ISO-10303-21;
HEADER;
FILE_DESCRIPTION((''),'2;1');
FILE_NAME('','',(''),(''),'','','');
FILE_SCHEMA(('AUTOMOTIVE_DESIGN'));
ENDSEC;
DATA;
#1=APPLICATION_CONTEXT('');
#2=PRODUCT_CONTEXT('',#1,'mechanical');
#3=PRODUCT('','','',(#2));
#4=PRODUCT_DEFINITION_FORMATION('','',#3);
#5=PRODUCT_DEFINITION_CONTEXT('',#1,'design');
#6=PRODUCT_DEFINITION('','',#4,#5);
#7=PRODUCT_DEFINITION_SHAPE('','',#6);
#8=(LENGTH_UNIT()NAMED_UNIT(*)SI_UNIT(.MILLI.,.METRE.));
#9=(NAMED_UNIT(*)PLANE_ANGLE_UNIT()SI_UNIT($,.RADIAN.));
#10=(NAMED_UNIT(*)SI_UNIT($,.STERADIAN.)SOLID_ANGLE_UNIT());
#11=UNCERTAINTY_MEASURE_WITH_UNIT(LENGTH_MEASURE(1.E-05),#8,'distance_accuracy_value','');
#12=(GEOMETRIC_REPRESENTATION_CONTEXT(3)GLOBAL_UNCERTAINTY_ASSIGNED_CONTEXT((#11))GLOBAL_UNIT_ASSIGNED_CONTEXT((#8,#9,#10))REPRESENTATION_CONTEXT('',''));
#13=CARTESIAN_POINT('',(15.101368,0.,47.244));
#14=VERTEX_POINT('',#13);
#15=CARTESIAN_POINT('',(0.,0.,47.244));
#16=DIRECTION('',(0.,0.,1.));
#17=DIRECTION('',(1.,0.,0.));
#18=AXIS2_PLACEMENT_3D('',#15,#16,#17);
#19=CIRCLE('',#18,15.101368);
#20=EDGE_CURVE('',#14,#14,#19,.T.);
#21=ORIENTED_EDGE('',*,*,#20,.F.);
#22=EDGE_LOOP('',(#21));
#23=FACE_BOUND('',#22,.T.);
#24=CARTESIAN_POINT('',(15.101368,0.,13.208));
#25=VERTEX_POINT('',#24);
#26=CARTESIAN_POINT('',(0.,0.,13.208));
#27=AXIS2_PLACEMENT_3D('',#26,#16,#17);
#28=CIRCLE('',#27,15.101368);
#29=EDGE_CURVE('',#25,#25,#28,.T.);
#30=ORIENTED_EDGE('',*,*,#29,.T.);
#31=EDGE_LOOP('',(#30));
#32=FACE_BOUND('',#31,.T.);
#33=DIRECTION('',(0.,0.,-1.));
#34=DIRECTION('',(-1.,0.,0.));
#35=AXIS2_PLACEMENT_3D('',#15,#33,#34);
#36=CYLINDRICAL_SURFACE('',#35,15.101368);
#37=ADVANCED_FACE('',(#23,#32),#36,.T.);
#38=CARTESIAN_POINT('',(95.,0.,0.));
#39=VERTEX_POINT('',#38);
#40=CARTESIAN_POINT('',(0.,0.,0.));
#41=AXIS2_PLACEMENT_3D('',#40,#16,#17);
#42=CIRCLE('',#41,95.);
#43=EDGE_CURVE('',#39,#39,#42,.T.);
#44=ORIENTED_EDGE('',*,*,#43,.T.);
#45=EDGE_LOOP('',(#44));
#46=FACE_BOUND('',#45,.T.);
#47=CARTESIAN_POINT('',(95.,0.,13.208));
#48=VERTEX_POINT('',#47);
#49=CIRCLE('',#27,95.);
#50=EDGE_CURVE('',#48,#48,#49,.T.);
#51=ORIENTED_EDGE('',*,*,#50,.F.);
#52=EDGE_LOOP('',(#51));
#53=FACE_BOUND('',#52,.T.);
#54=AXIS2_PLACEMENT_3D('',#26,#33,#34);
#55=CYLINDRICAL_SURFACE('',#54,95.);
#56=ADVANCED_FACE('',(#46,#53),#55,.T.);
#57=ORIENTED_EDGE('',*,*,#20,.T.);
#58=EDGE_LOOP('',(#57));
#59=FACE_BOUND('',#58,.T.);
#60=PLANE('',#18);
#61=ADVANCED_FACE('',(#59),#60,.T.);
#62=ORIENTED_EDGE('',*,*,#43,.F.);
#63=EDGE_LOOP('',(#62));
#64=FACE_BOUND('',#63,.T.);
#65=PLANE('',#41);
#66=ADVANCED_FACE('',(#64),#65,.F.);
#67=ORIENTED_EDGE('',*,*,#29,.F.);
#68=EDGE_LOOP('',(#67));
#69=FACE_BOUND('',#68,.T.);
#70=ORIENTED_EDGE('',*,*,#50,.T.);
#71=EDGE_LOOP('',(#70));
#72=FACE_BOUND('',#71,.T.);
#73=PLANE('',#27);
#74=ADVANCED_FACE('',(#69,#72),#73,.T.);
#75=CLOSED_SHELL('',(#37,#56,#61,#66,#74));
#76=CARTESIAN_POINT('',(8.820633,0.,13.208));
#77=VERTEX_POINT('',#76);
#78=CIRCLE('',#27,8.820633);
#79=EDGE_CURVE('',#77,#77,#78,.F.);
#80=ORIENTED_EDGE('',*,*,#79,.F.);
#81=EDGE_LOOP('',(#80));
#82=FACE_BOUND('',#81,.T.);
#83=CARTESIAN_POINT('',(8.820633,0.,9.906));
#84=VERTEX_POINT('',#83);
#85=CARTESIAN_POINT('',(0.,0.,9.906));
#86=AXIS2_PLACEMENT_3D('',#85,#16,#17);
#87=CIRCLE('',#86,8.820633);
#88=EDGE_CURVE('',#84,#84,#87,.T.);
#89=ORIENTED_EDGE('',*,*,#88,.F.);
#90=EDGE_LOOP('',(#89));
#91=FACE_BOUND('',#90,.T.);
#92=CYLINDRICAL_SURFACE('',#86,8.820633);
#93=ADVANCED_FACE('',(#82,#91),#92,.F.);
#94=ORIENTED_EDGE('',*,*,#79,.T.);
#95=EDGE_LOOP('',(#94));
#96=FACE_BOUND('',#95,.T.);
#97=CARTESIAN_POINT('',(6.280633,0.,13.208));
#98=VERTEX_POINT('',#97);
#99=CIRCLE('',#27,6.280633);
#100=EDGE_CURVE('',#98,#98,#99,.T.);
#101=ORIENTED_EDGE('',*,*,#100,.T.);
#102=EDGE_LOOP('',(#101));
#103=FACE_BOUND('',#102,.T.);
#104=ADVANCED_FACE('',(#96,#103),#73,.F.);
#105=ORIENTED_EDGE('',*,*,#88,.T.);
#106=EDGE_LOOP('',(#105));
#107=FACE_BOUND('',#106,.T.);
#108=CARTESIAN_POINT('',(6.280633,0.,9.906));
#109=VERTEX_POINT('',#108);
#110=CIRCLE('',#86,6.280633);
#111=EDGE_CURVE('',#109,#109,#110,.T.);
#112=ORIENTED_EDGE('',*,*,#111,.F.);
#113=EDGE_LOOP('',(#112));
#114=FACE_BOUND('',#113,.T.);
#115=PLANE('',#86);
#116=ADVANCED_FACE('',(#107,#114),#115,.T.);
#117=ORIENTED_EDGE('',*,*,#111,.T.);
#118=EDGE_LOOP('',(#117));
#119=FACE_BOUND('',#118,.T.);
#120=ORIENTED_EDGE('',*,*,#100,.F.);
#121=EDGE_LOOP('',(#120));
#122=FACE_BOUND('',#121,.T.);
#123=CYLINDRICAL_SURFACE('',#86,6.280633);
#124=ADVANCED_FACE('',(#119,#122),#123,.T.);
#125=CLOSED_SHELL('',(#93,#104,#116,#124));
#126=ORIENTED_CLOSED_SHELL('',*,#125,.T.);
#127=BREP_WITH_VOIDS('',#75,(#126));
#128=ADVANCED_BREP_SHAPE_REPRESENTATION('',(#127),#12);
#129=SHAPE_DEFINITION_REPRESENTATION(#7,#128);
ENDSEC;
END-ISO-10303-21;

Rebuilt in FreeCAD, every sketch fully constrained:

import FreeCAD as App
import Part
import Sketcher
from FreeCAD import Vector
Q = App.Units.Quantity

doc = App.newDocument("Part")
body = doc.addObject("PartDesign::Body", "Body")

# Sketch on XY plane
sketch1 = body.newObject("Sketcher::SketchObject", "Sketch")
sketch1.AttachmentSupport = (doc.getObject("XY_Plane"), [""])
sketch1.MapMode = "FlatFace"
sketch1.addGeometry(Part.Circle(Vector(0, 0, 0), Vector(0, 0, 1), 95), False)
sketch1.addConstraint([
    Sketcher.Constraint("Coincident", 0, 3, -1, 1),
    Sketcher.Constraint("Diameter", 0, 190.0),
])
pad1 = body.newObject("PartDesign::Pad", "Pad")
pad1.Profile = sketch1
pad1.Length = Q("0.52 in")

# Sketch on XY plane
sketch2 = body.newObject("Sketcher::SketchObject", "Sketch001")
sketch2.AttachmentSupport = (doc.getObject("XY_Plane"), [""])
sketch2.MapMode = "FlatFace"
sketch2.AttachmentOffset = App.Placement(Vector(0, 0, 0.52 * 25.4), App.Rotation())
sketch2.addGeometry([
    Part.Circle(Vector(0, 0, 0), Vector(0, 0, 1), 9),
    Part.Circle(Vector(0, 0, 0), Vector(0, 0, 1), 6),
], False)
sketch2.addConstraint([
    Sketcher.Constraint("Coincident", 0, 3, -1, 1),
    Sketcher.Constraint("Coincident", 1, 3, -1, 1),
    Sketcher.Constraint("Diameter", 0, 17.641265),
    Sketcher.Constraint("Diameter", 1, 12.561265),
])
pocket1 = body.newObject("PartDesign::Pocket", "Pocket")
pocket1.Profile = sketch2
pocket1.Length = Q("0.13 in")

# Sketch on XY plane
sketch3 = body.newObject("Sketcher::SketchObject", "Sketch002")
sketch3.AttachmentSupport = (doc.getObject("XY_Plane"), [""])
sketch3.MapMode = "FlatFace"
sketch3.AttachmentOffset = App.Placement(Vector(0, 0, 0.52 * 25.4), App.Rotation())
sketch3.addGeometry(Part.Circle(Vector(0, 0, 0), Vector(0, 0, 1), 15), False)
sketch3.addConstraint([
    Sketcher.Constraint("Coincident", 0, 3, -1, 1),
    Sketcher.Constraint("Diameter", 0, 30.202736),
])
pad2 = body.newObject("PartDesign::Pad", "Pad001")
pad2.Profile = sketch3
pad2.Length = Q("1.34 in")

doc.recompute()
